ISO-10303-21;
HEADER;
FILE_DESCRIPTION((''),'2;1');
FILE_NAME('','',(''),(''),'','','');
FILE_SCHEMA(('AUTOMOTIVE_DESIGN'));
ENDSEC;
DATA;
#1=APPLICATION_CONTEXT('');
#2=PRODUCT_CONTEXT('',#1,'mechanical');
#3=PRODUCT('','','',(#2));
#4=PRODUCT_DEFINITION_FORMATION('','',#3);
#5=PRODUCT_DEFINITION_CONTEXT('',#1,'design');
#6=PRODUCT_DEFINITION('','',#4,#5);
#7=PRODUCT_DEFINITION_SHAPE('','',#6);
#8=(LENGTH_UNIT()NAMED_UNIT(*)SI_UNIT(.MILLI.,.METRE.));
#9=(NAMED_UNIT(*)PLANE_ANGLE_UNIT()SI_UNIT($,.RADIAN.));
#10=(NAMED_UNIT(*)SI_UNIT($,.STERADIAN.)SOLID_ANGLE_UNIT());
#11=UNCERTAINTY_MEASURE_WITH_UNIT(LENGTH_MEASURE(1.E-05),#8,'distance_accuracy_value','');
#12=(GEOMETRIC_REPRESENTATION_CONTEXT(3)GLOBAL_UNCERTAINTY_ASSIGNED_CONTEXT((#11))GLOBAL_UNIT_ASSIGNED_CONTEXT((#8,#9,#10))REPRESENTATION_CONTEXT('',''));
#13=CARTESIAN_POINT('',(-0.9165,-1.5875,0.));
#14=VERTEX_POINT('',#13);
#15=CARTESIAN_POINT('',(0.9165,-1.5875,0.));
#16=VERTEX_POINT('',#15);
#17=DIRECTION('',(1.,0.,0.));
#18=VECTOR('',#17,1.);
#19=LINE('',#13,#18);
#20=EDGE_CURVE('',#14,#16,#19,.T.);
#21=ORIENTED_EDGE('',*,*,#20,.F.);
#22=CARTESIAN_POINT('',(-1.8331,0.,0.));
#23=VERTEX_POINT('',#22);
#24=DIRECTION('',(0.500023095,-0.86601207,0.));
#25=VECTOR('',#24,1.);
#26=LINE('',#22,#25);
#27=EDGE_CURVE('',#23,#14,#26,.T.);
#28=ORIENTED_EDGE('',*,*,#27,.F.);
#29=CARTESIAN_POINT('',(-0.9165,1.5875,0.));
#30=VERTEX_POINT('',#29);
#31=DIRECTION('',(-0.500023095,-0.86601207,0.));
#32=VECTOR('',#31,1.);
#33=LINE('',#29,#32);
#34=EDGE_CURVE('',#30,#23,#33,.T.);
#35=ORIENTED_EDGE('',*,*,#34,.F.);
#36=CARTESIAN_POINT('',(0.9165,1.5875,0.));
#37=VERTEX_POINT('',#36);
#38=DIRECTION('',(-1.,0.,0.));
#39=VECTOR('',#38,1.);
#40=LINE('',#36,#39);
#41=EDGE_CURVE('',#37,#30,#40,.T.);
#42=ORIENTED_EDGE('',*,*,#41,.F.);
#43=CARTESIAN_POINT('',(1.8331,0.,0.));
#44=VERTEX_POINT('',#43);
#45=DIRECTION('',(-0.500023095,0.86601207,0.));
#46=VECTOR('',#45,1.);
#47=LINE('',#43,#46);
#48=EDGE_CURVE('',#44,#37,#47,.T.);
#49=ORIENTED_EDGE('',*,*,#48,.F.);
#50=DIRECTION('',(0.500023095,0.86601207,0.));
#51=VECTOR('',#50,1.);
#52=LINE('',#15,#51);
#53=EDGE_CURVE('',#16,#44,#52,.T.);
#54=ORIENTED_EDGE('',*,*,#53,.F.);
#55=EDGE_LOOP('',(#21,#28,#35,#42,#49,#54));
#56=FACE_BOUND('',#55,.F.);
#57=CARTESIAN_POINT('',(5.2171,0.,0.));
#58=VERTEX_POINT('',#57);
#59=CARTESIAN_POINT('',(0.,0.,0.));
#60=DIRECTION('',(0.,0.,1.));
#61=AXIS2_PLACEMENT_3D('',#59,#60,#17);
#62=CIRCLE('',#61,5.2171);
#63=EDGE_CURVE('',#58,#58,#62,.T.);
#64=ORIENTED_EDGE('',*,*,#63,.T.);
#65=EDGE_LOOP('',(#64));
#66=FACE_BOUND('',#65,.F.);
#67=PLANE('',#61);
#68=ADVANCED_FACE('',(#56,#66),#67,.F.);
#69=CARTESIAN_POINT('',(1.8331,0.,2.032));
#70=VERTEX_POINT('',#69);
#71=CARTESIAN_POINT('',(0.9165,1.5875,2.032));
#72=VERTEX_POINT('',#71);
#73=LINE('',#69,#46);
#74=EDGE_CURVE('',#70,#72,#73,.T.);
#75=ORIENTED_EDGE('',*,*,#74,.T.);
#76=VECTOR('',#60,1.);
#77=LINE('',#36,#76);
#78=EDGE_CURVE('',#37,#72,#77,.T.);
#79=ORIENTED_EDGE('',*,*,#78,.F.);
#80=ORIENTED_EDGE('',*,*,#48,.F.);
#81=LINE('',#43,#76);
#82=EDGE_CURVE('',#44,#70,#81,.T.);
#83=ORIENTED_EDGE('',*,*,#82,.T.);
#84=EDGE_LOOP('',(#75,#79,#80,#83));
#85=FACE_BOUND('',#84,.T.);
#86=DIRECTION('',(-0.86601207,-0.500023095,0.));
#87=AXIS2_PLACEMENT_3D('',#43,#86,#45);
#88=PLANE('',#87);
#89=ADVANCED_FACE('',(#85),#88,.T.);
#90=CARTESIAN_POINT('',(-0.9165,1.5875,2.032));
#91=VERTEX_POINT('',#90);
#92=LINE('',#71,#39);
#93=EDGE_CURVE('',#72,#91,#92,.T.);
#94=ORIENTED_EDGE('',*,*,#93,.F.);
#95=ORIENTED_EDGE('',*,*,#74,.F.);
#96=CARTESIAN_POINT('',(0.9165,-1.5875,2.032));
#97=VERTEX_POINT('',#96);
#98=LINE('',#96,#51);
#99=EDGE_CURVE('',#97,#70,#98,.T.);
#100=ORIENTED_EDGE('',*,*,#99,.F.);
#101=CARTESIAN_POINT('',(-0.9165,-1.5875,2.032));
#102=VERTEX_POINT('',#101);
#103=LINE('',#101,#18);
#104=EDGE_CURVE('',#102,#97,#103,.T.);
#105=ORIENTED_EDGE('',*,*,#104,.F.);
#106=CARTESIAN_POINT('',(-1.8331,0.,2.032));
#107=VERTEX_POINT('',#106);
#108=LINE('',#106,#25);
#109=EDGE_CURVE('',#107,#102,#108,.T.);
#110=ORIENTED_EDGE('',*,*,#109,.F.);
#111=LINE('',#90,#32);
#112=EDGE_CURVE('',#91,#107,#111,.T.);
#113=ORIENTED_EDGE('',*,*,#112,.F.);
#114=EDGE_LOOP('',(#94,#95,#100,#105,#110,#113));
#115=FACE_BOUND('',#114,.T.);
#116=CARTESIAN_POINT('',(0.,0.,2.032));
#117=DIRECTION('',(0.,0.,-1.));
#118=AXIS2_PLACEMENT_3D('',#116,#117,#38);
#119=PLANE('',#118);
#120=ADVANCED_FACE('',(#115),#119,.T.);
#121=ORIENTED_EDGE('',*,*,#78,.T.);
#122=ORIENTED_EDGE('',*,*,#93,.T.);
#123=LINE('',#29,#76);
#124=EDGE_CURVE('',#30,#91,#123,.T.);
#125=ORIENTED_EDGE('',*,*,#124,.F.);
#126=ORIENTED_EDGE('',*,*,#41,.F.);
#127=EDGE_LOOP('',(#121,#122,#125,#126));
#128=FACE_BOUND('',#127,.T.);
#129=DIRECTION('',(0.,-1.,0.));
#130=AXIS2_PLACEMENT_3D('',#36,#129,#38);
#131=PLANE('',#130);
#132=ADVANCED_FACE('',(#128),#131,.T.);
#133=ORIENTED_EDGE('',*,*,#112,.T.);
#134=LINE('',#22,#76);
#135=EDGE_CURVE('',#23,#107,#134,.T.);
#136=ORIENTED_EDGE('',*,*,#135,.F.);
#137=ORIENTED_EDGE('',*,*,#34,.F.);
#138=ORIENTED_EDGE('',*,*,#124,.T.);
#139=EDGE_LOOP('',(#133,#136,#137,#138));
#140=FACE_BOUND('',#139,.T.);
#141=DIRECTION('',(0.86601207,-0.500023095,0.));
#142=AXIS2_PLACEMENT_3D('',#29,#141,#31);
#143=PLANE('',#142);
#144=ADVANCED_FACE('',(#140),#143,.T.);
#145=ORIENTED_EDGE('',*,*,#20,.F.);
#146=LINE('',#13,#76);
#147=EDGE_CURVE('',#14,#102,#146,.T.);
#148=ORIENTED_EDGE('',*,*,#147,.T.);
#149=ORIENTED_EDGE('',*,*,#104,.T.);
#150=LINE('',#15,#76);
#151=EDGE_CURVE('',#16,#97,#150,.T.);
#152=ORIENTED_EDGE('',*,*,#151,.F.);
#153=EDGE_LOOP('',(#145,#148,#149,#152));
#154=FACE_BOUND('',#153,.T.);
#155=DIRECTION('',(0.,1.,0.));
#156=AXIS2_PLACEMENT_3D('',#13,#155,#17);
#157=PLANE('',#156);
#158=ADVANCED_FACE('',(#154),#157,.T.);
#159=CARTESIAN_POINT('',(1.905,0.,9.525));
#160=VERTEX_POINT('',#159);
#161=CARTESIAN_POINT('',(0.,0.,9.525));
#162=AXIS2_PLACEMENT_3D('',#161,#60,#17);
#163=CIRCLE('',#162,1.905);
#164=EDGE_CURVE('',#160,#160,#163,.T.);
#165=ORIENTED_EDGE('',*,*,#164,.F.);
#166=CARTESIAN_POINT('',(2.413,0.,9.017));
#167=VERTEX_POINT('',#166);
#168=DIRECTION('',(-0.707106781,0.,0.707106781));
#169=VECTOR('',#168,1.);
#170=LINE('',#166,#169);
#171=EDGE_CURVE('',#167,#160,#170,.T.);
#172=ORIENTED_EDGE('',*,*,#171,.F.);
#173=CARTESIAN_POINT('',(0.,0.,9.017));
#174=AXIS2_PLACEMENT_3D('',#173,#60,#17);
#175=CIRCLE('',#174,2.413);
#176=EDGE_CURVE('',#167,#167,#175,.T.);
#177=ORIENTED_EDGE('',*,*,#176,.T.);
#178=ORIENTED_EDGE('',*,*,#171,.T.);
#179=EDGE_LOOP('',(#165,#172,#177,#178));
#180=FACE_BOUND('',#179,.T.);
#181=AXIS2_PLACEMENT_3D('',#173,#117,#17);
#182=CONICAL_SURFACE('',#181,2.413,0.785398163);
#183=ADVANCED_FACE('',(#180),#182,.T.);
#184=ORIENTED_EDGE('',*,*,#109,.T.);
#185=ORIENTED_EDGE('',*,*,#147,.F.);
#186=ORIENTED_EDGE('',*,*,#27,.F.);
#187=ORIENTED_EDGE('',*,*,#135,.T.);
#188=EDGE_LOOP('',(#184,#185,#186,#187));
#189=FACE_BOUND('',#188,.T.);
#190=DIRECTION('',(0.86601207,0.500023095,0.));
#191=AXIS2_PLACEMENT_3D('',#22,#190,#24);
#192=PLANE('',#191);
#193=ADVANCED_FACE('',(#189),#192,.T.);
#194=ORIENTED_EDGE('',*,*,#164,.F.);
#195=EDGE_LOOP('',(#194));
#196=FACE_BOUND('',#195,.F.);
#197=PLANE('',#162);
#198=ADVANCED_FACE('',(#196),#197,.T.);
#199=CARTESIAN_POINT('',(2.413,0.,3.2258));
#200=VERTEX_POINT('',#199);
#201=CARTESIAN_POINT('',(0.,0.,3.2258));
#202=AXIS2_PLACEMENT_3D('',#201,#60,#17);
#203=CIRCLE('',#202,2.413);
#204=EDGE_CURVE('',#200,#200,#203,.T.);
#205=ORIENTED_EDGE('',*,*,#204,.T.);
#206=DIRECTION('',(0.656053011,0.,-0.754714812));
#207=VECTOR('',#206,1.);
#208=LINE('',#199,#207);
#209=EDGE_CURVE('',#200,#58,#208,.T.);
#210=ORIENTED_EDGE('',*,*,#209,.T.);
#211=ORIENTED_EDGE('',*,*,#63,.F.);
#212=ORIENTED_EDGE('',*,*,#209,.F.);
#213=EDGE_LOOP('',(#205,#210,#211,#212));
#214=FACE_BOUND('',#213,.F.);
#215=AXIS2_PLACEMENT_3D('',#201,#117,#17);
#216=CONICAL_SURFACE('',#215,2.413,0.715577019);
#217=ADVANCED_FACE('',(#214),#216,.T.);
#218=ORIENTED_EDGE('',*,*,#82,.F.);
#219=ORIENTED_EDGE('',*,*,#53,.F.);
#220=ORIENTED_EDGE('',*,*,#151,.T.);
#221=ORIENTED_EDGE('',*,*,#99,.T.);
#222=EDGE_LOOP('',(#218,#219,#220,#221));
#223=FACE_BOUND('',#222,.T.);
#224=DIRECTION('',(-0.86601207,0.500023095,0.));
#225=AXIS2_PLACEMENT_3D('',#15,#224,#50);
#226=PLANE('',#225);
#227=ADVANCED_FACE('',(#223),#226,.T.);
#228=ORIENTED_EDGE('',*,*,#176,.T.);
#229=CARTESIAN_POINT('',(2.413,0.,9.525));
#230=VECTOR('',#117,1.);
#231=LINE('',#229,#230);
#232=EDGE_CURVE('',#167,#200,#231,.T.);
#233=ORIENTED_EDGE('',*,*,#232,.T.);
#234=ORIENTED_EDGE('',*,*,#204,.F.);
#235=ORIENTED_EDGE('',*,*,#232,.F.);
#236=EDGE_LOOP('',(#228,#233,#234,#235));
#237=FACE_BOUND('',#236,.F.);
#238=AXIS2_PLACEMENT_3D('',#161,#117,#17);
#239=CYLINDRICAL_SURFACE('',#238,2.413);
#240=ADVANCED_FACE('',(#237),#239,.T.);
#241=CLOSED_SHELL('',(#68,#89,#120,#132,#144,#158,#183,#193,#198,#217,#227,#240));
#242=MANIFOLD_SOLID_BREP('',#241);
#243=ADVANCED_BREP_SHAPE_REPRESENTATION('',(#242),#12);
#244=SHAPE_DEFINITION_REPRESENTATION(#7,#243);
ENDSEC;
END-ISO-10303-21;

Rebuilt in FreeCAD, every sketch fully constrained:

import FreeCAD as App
import Part
import Sketcher
Q = App.Units.Quantity


def edges_at(feature, points):
    """Names of the edges that pass closest to the given points."""
    edges = feature.Shape.Edges
    near = lambda p: min(range(len(edges)), key=lambda i: edges[i].distToShape(Part.Vertex(*p))[0])
    return sorted({f"Edge{near(p) + 1}" for p in points})


def add_polygon(sketch, points):
    """Adds a closed chain of lines whose ends are joined by coincident constraints."""
    first, n = sketch.GeometryCount, len(points)
    for a, b in zip(points, points[1:] + points[:1]):
        sketch.addGeometry(Part.LineSegment(App.Vector(*a, 0), App.Vector(*b, 0)), False)
    for i in range(n):
        sketch.addConstraint(Sketcher.Constraint("Coincident", first + i, 2, first + (i + 1) % n, 1))

doc = App.newDocument("Part")
body = doc.addObject("PartDesign::Body", "Body")

sketch1 = body.newObject("Sketcher::SketchObject", "Sketch")
sketch1.AttachmentSupport = (doc.getObject("XZ_Plane"), [""])
sketch1.MapMode = "FlatFace"
add_polygon(sketch1, [(5.2, 0), (0, 0), (0, 9.5), (2.4, 9.5), (2.4, 3.2)])
sketch1.addConstraint(Sketcher.Constraint("Horizontal", 0))
sketch1.addConstraint(Sketcher.Constraint("Vertical", 1))
sketch1.addConstraint(Sketcher.Constraint("Horizontal", 2))
sketch1.addConstraint(Sketcher.Constraint("Vertical", 3))
sketch1.addConstraint(Sketcher.Constraint("Coincident", 0, 2, -1, 1))
sketch1.addConstraint(Sketcher.Constraint("DistanceY", 1, 1, 1, 2, Q("0.375 in")))
sketch1.addConstraint(Sketcher.Constraint("DistanceX", 0, 2, 0, 1, Q("0.2054 in")))
sketch1.addConstraint(Sketcher.Constraint("DistanceY", -1, 1, 3, 2, Q("0.127 in")))
sketch1.addConstraint(Sketcher.Constraint("Angle", 4, Q("-49.0005 deg")))
revolution = body.newObject("PartDesign::Revolution", "Revolution")
revolution.Profile = sketch1
revolution.ReferenceAxis = (sketch1, ["V_Axis"])
revolution.Angle = 360
doc.recompute()

chamfer = body.newObject("PartDesign::Chamfer", "Chamfer")
chamfer.Base = (revolution, edges_at(revolution, [(-2.413, 0, 9.525)]))
chamfer.Size = Q("0.02 in")

sketch2 = body.newObject("Sketcher::SketchObject", "Sketch001")
sketch2.AttachmentSupport = (doc.getObject("XY_Plane"), [""])
sketch2.MapMode = "FlatFace"
add_polygon(sketch2, [(0.9, -1.6), (-0.9, -1.6), (-1.8, 0), (-0.9, 1.6), (0.9, 1.6), (1.8, 0)])
sketch2.addConstraint(Sketcher.Constraint("Horizontal", 0))
sketch2.addConstraint(Sketcher.Constraint("Horizontal", 3))
sketch2.addConstraint(Sketcher.Constraint("Symmetric", 0, 2, 3, 2, -1, 1))
sketch2.addConstraint(Sketcher.Constraint("Symmetric", 1, 2, 4, 2, -1, 1))
sketch2.addConstraint(Sketcher.Constraint("PointOnObject", 1, 2, -1))
sketch2.addConstraint(Sketcher.Constraint("Parallel", 2, 5))
sketch2.addConstraint(Sketcher.Constraint("Vertical", 0, 2, 2, 2))
sketch2.addConstraint(Sketcher.Constraint("DistanceY", 0, 2, 2, 2, Q("0.125 in")))
sketch2.addConstraint(Sketcher.Constraint("DistanceX", 0, 2, 0, 1, Q("1.833 mm")))
sketch2.addConstraint(Sketcher.Constraint("Distance", 1, Q("1.833 mm")))
pocket1 = body.newObject("PartDesign::Pocket", "Pocket")
pocket1.Profile = sketch2
pocket1.Length = Q("0.08 in")
pocket1.Reversed = True

doc.recompute()
